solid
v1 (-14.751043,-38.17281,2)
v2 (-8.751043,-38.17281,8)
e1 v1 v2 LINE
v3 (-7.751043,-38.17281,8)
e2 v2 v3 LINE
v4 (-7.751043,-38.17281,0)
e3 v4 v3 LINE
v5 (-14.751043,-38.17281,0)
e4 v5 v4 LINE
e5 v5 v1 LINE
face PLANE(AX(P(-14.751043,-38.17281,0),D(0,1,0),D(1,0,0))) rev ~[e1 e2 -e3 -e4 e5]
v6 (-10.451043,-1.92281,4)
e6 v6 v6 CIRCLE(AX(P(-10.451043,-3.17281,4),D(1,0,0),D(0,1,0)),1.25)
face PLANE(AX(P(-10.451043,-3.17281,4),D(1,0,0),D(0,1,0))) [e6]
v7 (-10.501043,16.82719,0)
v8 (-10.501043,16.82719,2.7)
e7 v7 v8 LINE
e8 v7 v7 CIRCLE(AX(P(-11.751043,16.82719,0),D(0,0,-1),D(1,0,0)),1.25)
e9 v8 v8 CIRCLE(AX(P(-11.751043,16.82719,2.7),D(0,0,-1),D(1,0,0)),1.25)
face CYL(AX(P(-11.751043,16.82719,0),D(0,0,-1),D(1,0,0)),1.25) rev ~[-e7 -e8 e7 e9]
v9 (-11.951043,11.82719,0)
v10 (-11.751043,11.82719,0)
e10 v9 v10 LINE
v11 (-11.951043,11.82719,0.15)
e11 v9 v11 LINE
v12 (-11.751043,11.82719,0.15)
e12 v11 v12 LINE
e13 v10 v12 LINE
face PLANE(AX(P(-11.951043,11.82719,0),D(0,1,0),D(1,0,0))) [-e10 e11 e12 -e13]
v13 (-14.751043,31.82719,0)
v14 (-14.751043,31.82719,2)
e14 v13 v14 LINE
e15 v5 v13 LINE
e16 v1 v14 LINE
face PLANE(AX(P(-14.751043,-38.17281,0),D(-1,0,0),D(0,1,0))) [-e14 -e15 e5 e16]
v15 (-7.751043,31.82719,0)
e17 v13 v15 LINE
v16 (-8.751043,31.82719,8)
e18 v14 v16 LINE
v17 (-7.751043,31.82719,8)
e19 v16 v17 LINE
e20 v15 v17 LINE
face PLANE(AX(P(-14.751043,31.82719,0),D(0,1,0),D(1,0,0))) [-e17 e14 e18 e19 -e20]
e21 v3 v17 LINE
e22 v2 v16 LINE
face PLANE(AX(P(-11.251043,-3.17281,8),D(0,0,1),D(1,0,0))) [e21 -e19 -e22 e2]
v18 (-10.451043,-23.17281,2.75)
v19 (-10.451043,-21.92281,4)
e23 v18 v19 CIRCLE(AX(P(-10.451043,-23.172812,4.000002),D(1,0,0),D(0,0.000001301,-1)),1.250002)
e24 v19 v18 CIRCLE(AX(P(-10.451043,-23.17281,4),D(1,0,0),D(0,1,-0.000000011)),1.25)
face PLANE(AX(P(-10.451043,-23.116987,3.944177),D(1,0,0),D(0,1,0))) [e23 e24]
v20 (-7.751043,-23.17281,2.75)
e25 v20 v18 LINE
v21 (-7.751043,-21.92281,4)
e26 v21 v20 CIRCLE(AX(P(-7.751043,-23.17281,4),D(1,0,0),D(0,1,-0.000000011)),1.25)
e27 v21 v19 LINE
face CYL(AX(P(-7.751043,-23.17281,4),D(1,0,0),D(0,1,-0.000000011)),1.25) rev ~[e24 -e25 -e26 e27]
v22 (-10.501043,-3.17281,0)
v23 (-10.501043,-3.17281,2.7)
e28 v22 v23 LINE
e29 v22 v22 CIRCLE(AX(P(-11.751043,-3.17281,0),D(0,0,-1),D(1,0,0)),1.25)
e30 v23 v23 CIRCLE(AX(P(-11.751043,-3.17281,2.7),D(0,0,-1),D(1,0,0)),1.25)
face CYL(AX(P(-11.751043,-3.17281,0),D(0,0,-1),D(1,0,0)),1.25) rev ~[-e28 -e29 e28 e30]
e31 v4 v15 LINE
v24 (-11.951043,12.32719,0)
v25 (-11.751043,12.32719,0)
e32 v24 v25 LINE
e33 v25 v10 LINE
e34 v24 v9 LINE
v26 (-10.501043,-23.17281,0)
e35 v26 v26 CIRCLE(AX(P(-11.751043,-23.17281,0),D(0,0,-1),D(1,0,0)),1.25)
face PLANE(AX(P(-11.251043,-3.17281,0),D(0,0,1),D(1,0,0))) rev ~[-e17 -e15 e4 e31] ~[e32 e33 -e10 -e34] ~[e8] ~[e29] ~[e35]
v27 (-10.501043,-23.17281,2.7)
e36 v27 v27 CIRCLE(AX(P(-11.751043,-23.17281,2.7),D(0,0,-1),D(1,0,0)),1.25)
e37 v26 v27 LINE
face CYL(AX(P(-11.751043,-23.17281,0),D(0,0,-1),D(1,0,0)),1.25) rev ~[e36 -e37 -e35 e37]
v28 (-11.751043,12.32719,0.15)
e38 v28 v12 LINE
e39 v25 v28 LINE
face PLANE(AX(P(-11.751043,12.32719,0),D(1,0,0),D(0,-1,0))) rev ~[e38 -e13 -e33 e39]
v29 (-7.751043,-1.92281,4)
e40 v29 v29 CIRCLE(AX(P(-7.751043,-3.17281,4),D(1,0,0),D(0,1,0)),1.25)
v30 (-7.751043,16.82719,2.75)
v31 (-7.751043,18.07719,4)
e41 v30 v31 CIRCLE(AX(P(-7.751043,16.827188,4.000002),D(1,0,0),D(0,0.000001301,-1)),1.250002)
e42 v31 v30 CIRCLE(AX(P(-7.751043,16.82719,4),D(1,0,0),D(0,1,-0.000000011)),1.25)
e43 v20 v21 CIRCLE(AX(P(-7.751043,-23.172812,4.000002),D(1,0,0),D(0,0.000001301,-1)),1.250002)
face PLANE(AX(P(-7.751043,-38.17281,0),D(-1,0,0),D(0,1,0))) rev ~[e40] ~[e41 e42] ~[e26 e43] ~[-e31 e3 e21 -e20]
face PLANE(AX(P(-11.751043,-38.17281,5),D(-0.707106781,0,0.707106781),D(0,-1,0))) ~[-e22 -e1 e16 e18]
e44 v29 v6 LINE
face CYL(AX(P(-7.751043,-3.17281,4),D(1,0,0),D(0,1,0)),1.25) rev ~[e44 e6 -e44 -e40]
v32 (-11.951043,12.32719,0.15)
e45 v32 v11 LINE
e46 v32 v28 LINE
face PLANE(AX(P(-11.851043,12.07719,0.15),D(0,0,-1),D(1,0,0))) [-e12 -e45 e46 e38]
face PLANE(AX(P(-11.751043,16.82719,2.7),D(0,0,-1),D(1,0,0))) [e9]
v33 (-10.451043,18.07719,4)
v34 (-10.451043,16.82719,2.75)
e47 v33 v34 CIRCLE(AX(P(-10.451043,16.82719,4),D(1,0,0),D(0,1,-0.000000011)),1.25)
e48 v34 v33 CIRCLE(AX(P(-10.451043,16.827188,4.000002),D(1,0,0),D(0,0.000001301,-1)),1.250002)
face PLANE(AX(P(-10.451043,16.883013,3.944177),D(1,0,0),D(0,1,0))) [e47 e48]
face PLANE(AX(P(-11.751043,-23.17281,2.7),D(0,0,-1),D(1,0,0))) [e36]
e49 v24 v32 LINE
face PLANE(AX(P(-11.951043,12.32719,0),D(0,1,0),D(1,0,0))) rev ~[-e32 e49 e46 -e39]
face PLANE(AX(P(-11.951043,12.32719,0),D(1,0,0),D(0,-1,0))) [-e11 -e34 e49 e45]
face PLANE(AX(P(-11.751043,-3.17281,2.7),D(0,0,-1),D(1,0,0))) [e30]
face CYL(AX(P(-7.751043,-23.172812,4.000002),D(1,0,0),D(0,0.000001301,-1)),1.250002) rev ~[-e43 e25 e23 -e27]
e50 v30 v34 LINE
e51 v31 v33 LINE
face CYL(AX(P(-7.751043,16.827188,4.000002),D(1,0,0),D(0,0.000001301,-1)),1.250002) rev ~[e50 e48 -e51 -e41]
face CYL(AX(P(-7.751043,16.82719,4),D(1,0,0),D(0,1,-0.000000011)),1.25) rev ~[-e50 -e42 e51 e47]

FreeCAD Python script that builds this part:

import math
import FreeCAD as App
import Part
import Sketcher


def edges_at(feature, points):
    """Names of the edges that pass closest to the given points."""
    edges = feature.Shape.Edges
    near = lambda p: min(range(len(edges)), key=lambda i: edges[i].distToShape(Part.Vertex(*p))[0])
    return sorted({f"Edge{near(p) + 1}" for p in points})

doc = App.newDocument("Part")
body = doc.addObject("PartDesign::Body", "Body")

# Sketch on XY plane
sketch1 = body.newObject("Sketcher::SketchObject", "Sketch")
sketch1.AttachmentSupport = (doc.getObject("XY_Plane"), [""])
sketch1.MapMode = "FlatFace"
sketch1.addGeometry([
    Part.LineSegment(App.Vector(-15, 32, 0), App.Vector(-15, -38, 0)),
    Part.LineSegment(App.Vector(-15, -38, 0), App.Vector(-8, -38, 0)),
    Part.LineSegment(App.Vector(-8, -38, 0), App.Vector(-8, 32, 0)),
    Part.LineSegment(App.Vector(-8, 32, 0), App.Vector(-15, 32, 0)),
], False)
sketch1.addConstraint([
    Sketcher.Constraint("Coincident", 0, 2, 1, 1),
    Sketcher.Constraint("Coincident", 1, 2, 2, 1),
    Sketcher.Constraint("Coincident", 2, 2, 3, 1),
    Sketcher.Constraint("Coincident", 3, 2, 0, 1),
    Sketcher.Constraint("Vertical", 0),
    Sketcher.Constraint("Horizontal", 1),
    Sketcher.Constraint("Vertical", 2),
    Sketcher.Constraint("Horizontal", 3),
    Sketcher.Constraint("DistanceX", 1, 1, 1, 2, 7.0),
    Sketcher.Constraint("DistanceY", 0, 2, 0, 1, 70.0),
    Sketcher.Constraint("DistanceY", 0, 2, -1, 1, 38.17281),
    Sketcher.Constraint("DistanceX", 0, 2, -1, 1, 14.751043),
])
pad1 = body.newObject("PartDesign::Pad", "Pad")
pad1.Profile = sketch1
pad1.Length = 8
doc.recompute()

chamfer = body.newObject("PartDesign::Chamfer", "Chamfer")
chamfer.Base = (pad1, edges_at(pad1, [(-14.751, -3.173, 8)]))
chamfer.Size = 6

# Sketch on YZ plane
sketch2 = body.newObject("Sketcher::SketchObject", "Sketch001")
sketch2.AttachmentSupport = (doc.getObject("YZ_Plane"), [""])
sketch2.MapMode = "FlatFace"
sketch2.AttachmentOffset = App.Placement(App.Vector(0, 0, -7.751043), App.Rotation())
sketch2.addGeometry([
    Part.ArcOfCircle(Part.Circle(App.Vector(-23.2, 4, 0), App.Vector(0, 0, 1), 1.3), math.radians(-90), math.radians(0)),  # 0
    Part.ArcOfCircle(Part.Circle(App.Vector(-23.2, 4, 0), App.Vector(0, 0, 1), 1.3), math.radians(0), math.radians(270)),  # 1
    Part.Circle(App.Vector(-3.2, 4, 0), App.Vector(0, 0, 1), 1.2),  # 2
    Part.ArcOfCircle(Part.Circle(App.Vector(16.8, 4, 0), App.Vector(0, 0, 1), 1.3), math.radians(-90), math.radians(0)),  # 3
    Part.ArcOfCircle(Part.Circle(App.Vector(16.8, 4, 0), App.Vector(0, 0, 1), 1.3), math.radians(0), math.radians(270)),  # 4
], False)
sketch2.addConstraint([
    Sketcher.Constraint("Tangent", 0, 1, 1, 2),
    Sketcher.Constraint("Coincident", 1, 1, 0, 2),
    Sketcher.Constraint("Tangent", 3, 1, 4, 2),
    Sketcher.Constraint("Coincident", 4, 1, 3, 2),
    Sketcher.Constraint("Equal", 1, 2),
    Sketcher.Constraint("Equal", 2, 3),
    Sketcher.Constraint("Horizontal", 1, 3, 2, 3),
    Sketcher.Constraint("Horizontal", 2, 3, 3, 3),
    Sketcher.Constraint("Horizontal", 4, 3, 1, 1),
    Sketcher.Constraint("Horizontal", 1, 1, 4, 1),
    Sketcher.Constraint("Vertical", 1, 3, 0, 1),
    Sketcher.Constraint("Vertical", 4, 3, 3, 1),
    Sketcher.Constraint("Diameter", 2, 2.5),
    Sketcher.Constraint("DistanceY", -1, 1, 0, 3, 4.000002),
    Sketcher.Constraint("DistanceX", 1, 3, 2, 3, 20.0),
    Sketcher.Constraint("DistanceX", 2, 3, 3, 3, 19.999998),
    Sketcher.Constraint("DistanceX", 0, 3, -1, 1, 23.172812),
])
pocket1 = body.newObject("PartDesign::Pocket", "Pocket")
pocket1.Profile = sketch2
pocket1.Length = 2.7

# Sketch on XY plane
sketch3 = body.newObject("Sketcher::SketchObject", "Sketch002")
sketch3.AttachmentSupport = (doc.getObject("XY_Plane"), [""])
sketch3.MapMode = "FlatFace"
sketch3.addGeometry([
    Part.Circle(App.Vector(-11.8, 16.8, 0), App.Vector(0, 0, 1), 1.2),
    Part.Circle(App.Vector(-11.8, -3.2, 0), App.Vector(0, 0, 1), 1.2),
    Part.Circle(App.Vector(-11.8, -23.2, 0), App.Vector(0, 0, 1), 1.2),
], False)
sketch3.addConstraint([
    Sketcher.Constraint("Equal", 0, 1),
    Sketcher.Constraint("Equal", 1, 2),
    Sketcher.Constraint("Vertical", 0, 3, 1, 3),
    Sketcher.Constraint("Vertical", 1, 3, 2, 3),
    Sketcher.Constraint("Diameter", 0, 2.5),
    Sketcher.Constraint("DistanceY", 1, 3, 0, 3, 20.0),
    Sketcher.Constraint("DistanceY", 2, 3, 1, 3, 20.0),
    Sketcher.Constraint("DistanceY", -1, 1, 0, 3, 16.82719),
    Sketcher.Constraint("DistanceX", 0, 3, -1, 1, 11.751043),
])
pocket2 = body.newObject("PartDesign::Pocket", "Pocket001")
pocket2.Profile = sketch3
pocket2.Length = 2.7
pocket2.Reversed = True

# Sketch on XY plane
sketch4 = body.newObject("Sketcher::SketchObject", "Sketch003")
sketch4.AttachmentSupport = (doc.getObject("XY_Plane"), [""])
sketch4.MapMode = "FlatFace"
sketch4.addGeometry([
    Part.LineSegment(App.Vector(-11.95, 11.83, 0), App.Vector(-11.95, 12.33, 0)),
    Part.LineSegment(App.Vector(-11.95, 12.33, 0), App.Vector(-11.75, 12.33, 0)),
    Part.LineSegment(App.Vector(-11.75, 12.33, 0), App.Vector(-11.75, 11.83, 0)),
    Part.LineSegment(App.Vector(-11.75, 11.83, 0), App.Vector(-11.95, 11.83, 0)),
], False)
sketch4.addConstraint([
    Sketcher.Constraint("Coincident", 0, 2, 1, 1),
    Sketcher.Constraint("Coincident", 1, 2, 2, 1),
    Sketcher.Constraint("Coincident", 2, 2, 3, 1),
    Sketcher.Constraint("Coincident", 3, 2, 0, 1),
    Sketcher.Constraint("Vertical", 0),
    Sketcher.Constraint("Horizontal", 1),
    Sketcher.Constraint("Vertical", 2),
    Sketcher.Constraint("Horizontal", 3),
    Sketcher.Constraint("DistanceX", 1, 1, 1, 2, 0.2),
    Sketcher.Constraint("DistanceY", 0, 1, 0, 2, 0.5),
    Sketcher.Constraint("DistanceY", -1, 1, 0, 2, 12.32719),
    Sketcher.Constraint("DistanceX", 0, 2, -1, 1, 11.951043),
])
pocket3 = body.newObject("PartDesign::Pocket", "Pocket002")
pocket3.Profile = sketch4
pocket3.Length = 0.15
pocket3.Reversed = True

doc.recompute()
